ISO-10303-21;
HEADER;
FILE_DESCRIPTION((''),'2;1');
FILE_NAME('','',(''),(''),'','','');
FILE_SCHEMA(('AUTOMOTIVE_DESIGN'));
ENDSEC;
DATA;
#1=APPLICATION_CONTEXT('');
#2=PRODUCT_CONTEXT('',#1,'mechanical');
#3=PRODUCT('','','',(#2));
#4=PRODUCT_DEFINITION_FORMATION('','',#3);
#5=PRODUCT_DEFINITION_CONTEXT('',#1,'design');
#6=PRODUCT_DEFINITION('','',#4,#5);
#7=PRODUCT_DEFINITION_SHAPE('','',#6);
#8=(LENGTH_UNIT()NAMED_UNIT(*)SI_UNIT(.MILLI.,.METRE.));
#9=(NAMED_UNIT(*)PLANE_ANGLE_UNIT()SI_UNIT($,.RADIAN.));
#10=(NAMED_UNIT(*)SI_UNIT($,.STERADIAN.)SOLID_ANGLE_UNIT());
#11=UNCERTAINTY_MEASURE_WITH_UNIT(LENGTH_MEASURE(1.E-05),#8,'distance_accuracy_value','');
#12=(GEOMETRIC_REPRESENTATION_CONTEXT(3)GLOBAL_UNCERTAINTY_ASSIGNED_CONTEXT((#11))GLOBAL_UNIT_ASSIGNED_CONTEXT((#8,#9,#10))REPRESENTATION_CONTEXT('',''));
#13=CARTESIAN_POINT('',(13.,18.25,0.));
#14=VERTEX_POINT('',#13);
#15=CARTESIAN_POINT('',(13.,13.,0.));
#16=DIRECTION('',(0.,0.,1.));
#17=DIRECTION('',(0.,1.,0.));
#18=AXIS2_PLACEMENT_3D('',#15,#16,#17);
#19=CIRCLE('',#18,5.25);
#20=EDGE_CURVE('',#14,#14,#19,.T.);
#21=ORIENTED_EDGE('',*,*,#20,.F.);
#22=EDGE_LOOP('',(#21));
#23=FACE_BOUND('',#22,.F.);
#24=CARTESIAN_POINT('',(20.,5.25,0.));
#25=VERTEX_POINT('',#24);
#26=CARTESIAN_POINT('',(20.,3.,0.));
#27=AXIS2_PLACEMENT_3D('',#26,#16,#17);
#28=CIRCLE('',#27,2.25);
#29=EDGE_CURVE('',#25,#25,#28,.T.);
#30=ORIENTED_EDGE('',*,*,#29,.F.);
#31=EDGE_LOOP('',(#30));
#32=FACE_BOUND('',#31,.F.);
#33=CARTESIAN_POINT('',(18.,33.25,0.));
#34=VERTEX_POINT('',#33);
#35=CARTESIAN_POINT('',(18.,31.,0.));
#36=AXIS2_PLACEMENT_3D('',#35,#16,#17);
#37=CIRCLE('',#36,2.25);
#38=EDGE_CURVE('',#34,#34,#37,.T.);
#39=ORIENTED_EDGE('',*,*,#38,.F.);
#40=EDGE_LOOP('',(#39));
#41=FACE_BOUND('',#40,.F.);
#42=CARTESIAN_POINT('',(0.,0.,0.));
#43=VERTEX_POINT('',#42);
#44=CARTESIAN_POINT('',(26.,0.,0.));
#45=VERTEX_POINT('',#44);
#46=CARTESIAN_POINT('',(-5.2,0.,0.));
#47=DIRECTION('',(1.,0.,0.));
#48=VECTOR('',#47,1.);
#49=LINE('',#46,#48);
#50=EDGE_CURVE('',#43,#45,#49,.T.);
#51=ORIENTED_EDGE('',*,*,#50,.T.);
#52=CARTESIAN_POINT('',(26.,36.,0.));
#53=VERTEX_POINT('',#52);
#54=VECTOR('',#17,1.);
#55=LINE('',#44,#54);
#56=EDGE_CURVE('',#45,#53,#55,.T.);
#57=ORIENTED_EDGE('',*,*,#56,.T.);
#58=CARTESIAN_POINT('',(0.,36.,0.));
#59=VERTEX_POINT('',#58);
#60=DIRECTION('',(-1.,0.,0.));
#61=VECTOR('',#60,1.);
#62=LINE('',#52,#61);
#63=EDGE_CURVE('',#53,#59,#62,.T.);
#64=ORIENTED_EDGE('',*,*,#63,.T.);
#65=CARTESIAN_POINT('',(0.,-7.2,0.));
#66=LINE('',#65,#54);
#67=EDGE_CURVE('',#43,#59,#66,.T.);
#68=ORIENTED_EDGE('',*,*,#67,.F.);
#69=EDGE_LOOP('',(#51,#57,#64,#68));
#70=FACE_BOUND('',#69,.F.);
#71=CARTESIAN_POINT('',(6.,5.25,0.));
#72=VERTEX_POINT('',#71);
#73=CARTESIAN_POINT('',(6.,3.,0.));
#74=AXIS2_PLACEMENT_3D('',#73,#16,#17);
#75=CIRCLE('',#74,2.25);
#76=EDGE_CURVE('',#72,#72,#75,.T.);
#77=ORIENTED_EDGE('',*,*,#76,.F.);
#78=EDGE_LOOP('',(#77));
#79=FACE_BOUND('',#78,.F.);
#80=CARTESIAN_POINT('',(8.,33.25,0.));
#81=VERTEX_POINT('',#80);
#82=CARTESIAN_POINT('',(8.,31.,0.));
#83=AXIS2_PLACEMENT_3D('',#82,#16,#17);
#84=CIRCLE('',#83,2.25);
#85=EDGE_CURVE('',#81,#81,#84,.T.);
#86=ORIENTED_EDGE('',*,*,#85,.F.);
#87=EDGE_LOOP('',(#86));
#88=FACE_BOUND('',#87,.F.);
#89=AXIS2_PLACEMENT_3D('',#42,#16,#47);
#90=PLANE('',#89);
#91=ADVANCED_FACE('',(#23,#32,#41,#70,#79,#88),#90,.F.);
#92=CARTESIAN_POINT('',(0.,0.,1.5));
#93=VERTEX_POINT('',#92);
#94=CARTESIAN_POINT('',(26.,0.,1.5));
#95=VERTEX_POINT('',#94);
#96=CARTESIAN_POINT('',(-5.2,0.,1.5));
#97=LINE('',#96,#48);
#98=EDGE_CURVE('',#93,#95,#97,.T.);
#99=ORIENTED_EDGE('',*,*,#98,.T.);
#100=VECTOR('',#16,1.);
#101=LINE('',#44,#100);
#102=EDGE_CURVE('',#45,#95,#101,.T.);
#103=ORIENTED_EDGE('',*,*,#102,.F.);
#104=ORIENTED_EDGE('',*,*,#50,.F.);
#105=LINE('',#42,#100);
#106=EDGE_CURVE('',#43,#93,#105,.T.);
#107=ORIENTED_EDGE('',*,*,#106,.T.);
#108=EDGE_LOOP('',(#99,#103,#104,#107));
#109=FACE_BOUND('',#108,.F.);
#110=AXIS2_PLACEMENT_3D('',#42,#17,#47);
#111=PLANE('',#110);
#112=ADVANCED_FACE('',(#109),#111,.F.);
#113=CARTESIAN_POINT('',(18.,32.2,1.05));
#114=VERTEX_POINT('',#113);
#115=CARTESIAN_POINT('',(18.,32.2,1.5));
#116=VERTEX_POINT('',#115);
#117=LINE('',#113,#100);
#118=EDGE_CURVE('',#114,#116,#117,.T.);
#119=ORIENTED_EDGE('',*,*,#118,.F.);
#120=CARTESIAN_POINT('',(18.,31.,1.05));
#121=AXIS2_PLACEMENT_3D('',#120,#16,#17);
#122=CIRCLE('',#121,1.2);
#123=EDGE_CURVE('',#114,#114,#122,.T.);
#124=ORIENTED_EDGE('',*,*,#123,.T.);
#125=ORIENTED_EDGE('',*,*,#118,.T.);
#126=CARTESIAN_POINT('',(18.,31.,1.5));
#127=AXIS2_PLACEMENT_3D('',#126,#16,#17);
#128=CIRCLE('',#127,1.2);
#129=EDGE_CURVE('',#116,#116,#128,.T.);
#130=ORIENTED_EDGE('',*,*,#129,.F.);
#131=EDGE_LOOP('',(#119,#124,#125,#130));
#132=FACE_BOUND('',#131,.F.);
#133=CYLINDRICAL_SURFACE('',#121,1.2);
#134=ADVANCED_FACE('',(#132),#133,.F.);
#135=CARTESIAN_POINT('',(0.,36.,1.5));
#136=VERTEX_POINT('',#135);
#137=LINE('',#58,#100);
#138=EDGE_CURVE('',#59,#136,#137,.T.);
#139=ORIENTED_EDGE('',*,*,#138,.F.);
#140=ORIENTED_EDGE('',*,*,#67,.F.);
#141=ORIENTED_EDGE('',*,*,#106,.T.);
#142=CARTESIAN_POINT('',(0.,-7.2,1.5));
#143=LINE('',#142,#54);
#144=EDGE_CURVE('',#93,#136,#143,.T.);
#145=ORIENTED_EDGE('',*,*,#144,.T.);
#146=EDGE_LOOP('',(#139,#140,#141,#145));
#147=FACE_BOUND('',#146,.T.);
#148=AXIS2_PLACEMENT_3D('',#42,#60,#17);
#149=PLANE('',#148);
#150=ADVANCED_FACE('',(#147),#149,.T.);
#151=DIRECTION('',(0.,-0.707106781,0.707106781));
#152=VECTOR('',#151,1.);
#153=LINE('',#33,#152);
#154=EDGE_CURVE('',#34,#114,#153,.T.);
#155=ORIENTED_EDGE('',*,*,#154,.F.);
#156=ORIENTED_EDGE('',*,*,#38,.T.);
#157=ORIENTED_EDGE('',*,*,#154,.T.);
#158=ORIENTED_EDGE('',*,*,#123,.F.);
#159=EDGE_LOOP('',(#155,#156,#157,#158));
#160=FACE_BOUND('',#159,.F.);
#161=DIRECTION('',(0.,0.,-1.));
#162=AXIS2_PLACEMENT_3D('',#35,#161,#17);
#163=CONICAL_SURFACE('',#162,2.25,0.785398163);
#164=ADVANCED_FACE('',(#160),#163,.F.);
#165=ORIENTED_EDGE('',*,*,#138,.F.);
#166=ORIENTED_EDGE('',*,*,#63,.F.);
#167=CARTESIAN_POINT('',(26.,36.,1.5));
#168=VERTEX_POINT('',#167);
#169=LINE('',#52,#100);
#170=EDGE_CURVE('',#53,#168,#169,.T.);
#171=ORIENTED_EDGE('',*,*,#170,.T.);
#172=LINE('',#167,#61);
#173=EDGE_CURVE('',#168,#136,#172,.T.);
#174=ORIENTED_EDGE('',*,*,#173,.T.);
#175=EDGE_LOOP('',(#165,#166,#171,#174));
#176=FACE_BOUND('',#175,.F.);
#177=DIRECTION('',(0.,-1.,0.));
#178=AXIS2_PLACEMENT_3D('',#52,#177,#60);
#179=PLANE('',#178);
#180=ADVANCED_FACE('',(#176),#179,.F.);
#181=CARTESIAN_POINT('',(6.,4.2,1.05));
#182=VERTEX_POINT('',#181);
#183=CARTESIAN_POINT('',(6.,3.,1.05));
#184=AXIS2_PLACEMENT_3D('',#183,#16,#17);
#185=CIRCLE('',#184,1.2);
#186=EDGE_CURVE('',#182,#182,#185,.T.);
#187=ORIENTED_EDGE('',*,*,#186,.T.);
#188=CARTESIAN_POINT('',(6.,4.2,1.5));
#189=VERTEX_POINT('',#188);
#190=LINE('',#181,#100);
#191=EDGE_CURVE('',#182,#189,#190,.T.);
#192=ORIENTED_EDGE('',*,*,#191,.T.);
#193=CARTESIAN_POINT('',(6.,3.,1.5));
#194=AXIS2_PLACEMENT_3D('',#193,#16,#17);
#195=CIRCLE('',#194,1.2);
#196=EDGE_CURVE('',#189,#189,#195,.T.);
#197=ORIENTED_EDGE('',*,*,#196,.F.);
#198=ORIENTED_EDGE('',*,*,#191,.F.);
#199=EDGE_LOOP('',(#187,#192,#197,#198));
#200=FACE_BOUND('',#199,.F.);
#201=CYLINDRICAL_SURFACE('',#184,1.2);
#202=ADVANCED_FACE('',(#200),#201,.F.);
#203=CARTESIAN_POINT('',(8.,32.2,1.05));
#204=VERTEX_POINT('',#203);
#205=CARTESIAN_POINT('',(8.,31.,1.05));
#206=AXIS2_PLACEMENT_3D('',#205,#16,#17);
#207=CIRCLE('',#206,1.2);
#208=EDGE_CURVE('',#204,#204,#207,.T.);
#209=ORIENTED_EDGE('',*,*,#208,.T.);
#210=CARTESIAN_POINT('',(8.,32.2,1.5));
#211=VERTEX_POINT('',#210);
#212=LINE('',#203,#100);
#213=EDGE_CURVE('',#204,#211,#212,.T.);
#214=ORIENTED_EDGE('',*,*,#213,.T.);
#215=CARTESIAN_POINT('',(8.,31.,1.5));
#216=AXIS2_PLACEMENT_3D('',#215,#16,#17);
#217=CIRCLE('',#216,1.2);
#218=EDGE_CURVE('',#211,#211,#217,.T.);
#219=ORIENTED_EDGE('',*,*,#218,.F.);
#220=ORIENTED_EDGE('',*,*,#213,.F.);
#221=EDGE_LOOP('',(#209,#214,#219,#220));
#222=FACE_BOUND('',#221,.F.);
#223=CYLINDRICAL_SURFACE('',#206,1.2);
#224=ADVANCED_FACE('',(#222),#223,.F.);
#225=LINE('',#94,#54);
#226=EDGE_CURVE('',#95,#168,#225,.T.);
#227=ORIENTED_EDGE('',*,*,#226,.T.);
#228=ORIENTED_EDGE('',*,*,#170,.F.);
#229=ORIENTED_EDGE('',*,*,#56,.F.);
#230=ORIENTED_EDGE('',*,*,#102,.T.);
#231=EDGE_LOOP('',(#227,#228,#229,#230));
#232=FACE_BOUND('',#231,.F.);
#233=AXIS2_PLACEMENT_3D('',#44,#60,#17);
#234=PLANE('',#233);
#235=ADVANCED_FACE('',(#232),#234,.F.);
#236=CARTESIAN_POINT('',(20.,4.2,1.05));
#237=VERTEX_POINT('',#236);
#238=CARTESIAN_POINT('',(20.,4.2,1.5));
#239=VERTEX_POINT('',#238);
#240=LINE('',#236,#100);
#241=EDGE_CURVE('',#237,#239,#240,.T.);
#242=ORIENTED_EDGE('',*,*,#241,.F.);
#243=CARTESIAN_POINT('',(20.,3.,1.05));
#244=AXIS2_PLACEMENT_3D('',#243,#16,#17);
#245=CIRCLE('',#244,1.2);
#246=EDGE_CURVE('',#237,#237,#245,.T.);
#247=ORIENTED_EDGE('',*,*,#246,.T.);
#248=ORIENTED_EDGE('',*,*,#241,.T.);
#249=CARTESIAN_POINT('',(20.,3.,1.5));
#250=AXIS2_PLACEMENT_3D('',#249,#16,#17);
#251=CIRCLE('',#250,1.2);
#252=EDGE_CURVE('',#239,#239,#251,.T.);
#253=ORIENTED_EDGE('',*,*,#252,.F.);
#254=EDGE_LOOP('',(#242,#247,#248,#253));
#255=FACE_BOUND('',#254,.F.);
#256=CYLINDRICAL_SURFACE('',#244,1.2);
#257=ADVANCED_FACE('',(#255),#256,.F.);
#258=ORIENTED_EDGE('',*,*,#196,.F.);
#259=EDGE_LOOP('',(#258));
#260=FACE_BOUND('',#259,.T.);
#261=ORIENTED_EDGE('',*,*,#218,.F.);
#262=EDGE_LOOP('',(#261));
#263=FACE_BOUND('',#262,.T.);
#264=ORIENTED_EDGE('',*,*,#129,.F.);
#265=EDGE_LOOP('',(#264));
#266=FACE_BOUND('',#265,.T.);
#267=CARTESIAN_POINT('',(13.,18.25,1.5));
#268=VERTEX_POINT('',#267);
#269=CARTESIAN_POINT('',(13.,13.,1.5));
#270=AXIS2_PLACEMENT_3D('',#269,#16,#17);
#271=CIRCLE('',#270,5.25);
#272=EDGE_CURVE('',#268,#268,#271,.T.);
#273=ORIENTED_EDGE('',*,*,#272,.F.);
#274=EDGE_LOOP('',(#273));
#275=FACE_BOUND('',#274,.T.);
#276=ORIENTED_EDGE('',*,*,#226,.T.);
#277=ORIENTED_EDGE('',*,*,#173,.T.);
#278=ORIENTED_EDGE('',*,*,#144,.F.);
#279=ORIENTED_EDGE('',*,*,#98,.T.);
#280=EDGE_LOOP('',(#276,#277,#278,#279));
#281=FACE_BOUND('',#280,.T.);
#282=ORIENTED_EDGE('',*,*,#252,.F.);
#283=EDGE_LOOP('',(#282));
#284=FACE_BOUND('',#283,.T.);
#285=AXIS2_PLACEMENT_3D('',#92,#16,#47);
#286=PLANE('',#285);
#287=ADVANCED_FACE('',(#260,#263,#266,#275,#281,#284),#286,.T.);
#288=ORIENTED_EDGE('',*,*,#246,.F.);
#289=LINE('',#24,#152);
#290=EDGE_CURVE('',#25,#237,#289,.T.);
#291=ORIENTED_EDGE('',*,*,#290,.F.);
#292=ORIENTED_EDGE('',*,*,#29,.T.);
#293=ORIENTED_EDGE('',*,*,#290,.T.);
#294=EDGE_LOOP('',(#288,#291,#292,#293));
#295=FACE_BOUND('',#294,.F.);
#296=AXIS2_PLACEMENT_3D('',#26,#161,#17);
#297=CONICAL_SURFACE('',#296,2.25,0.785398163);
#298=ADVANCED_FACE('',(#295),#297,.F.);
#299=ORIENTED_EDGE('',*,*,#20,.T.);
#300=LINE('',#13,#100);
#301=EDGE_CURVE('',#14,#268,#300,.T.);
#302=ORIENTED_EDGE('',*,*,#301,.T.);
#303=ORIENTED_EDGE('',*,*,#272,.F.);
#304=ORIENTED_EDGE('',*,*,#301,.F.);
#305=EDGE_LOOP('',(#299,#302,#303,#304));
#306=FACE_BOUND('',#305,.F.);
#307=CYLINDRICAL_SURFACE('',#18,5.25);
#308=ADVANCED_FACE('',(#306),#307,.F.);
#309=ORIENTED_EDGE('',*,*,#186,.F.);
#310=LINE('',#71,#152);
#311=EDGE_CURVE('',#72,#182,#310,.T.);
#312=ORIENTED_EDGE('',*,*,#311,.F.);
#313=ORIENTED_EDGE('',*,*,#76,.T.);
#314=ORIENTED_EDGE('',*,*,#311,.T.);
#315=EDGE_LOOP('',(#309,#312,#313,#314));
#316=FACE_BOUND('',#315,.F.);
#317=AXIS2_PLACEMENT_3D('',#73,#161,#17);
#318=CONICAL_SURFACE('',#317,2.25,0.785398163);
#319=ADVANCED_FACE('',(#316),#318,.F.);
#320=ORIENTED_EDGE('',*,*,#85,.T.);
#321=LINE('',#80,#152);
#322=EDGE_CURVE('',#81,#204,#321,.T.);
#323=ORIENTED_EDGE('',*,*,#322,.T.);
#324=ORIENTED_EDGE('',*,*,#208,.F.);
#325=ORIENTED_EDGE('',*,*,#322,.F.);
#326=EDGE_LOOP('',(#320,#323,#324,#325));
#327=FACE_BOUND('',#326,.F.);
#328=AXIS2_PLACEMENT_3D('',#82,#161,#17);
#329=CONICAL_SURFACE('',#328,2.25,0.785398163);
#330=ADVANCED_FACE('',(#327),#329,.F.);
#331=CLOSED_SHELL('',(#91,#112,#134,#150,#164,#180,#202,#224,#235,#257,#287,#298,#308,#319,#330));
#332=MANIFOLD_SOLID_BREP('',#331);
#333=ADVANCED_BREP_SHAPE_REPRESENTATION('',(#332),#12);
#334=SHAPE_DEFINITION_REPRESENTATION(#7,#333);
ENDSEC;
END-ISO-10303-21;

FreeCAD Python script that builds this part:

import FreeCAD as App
import Part
import Sketcher
from FreeCAD import Vector


def add_polygon(sketch, points):
    """Adds a closed chain of lines whose ends are joined by coincident constraints."""
    first, n = sketch.GeometryCount, len(points)
    for a, b in zip(points, points[1:] + points[:1]):
        sketch.addGeometry(Part.LineSegment(App.Vector(*a, 0), App.Vector(*b, 0)), False)
    for i in range(n):
        sketch.addConstraint(Sketcher.Constraint("Coincident", first + i, 2, first + (i + 1) % n, 1))

doc = App.newDocument("Part")
body = doc.addObject("PartDesign::Body", "Body")

sketch1 = body.newObject("Sketcher::SketchObject", "Sketch")
sketch1.AttachmentSupport = (doc.getObject("XY_Plane"), [""])
sketch1.MapMode = "FlatFace"
add_polygon(sketch1, [(0, 36), (0, 0), (26, 0), (26, 36)])
sketch1.addConstraint([
    Sketcher.Constraint("Vertical", 0),
    Sketcher.Constraint("Horizontal", 1),
    Sketcher.Constraint("Vertical", 2),
    Sketcher.Constraint("Horizontal", 3),
    Sketcher.Constraint("Coincident", 0, 2, -1, 1),
    Sketcher.Constraint("DistanceX", 1, 1, 1, 2, 26.0),
    Sketcher.Constraint("DistanceY", 0, 2, 0, 1, 36.0),
])
pad1 = body.newObject("PartDesign::Pad", "Pad")
pad1.Profile = sketch1
pad1.Length = 1.5

sketch2 = body.newObject("Sketcher::SketchObject", "Sketch001")
sketch2.AttachmentSupport = (doc.getObject("XY_Plane"), [""])
sketch2.MapMode = "FlatFace"
sketch2.addGeometry(Part.Circle(Vector(13, 13, 0), Vector(0, 0, 1), 5), False)
sketch2.addConstraint([
    Sketcher.Constraint("Diameter", 0, 10.5),
    Sketcher.Constraint("DistanceX", -1, 1, 0, 3, 13.0),
    Sketcher.Constraint("DistanceY", -1, 1, 0, 3, 13.0),
])
doc.recompute()
hole = body.newObject("PartDesign::Hole", "Hole")
hole.Profile = sketch2
hole.ThreadType = "None"
hole.Diameter = 10.5
hole.DepthType = "ThroughAll"
hole.Reversed = True

sketch3 = body.newObject("Sketcher::SketchObject", "Sketch002")
sketch3.AttachmentSupport = (doc.getObject("XY_Plane"), [""])
sketch3.MapMode = "FlatFace"
sketch3.addGeometry([
    Part.Circle(Vector(18, 31, 0), Vector(0, 0, 1), 1.2),
    Part.Circle(Vector(8, 31, 0), Vector(0, 0, 1), 1.2),
    Part.Circle(Vector(20, 3, 0), Vector(0, 0, 1), 1.2),
    Part.Circle(Vector(6, 3, 0), Vector(0, 0, 1), 1.2),
], False)
sketch3.addConstraint([
    Sketcher.Constraint("Equal", 0, 1),
    Sketcher.Constraint("Equal", 1, 2),
    Sketcher.Constraint("Equal", 2, 3),
    Sketcher.Constraint("Horizontal", 0, 3, 1, 3),
    Sketcher.Constraint("Horizontal", 2, 3, 3, 3),
    Sketcher.Constraint("Diameter", 0, 2.4),
    Sketcher.Constraint("DistanceX", -1, 1, 0, 3, 18.0),
    Sketcher.Constraint("DistanceY", -1, 1, 0, 3, 31.0),
    Sketcher.Constraint("DistanceX", -1, 1, 1, 3, 8.0),
    Sketcher.Constraint("DistanceX", -1, 1, 2, 3, 20.0),
    Sketcher.Constraint("DistanceY", -1, 1, 2, 3, 3.0),
    Sketcher.Constraint("DistanceX", -1, 1, 3, 3, 6.0),
])
doc.recompute()
hole2 = body.newObject("PartDesign::Hole", "Hole001")
hole2.Profile = sketch3
hole2.ThreadType = "None"
hole2.Diameter = 2.4
hole2.DepthType = "ThroughAll"
hole2.HoleCutType = "Countersink"
hole2.HoleCutDiameter = 4.5
hole2.HoleCutCountersinkAngle = 90
hole2.Reversed = True

doc.recompute()
